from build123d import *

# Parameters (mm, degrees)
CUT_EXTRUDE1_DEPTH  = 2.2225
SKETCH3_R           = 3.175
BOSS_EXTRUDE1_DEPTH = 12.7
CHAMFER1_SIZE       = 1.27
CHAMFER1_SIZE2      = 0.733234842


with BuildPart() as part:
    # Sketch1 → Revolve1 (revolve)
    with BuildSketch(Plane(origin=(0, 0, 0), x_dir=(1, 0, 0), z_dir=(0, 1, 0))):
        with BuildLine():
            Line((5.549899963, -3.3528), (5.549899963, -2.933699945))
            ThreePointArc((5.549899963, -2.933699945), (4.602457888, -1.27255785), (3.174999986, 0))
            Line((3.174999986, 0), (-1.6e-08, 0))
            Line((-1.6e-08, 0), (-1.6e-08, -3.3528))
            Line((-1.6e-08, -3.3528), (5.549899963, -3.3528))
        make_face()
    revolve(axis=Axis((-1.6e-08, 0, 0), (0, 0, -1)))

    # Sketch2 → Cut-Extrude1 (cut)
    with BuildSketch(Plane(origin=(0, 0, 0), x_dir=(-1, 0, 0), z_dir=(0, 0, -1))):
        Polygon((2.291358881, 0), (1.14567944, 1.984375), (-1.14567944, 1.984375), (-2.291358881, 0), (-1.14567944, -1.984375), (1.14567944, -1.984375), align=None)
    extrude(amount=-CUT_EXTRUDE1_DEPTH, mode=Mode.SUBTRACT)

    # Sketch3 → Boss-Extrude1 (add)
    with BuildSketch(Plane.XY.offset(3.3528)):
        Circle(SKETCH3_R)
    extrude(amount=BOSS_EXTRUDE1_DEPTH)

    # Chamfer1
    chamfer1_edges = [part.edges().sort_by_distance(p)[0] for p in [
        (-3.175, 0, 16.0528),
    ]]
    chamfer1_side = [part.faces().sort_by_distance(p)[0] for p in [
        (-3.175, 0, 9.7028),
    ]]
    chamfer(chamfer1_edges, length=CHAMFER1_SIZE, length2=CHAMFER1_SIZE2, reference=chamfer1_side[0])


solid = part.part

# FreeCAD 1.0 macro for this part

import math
import FreeCAD as App
import Part
import Sketcher
from FreeCAD import Vector
Q = App.Units.Quantity


def edges_at(feature, points):
    """Names of the edges that pass closest to the given points."""
    edges = feature.Shape.Edges
    near = lambda p: min(range(len(edges)), key=lambda i: edges[i].distToShape(Part.Vertex(*p))[0])
    return sorted({f"Edge{near(p) + 1}" for p in points})

doc = App.newDocument("Part")
body = doc.addObject("PartDesign::Body", "Body")

# Sketch on XZ plane
sketch1 = body.newObject("Sketcher::SketchObject", "Sketch")
sketch1.AttachmentSupport = (doc.getObject("XZ_Plane"), [""])
sketch1.MapMode = "FlatFace"
sketch1.addGeometry(Part.LineSegment(Vector(5.55, 3.35, 0), Vector(5.55, 2.93, 0)), False)
sketch1.addGeometry(Part.ArcOfCircle(Part.Circle(Vector(0, 5, 0), Vector(0, 0, 1), 5.92), math.radians(-58), math.radians(-20)), False)
sketch1.addGeometry(Part.LineSegment(Vector(3.17, 0, 0), Vector(0, 0, 0)), False)
sketch1.addGeometry(Part.LineSegment(Vector(0, 0, 0), Vector(0, 3.35, 0)), False)
sketch1.addGeometry(Part.LineSegment(Vector(0, 3.35, 0), Vector(5.55, 3.35, 0)), False)
sketch1.addConstraint(Sketcher.Constraint("Coincident", 0, 2, 1, 2))
sketch1.addConstraint(Sketcher.Constraint("Coincident", 1, 1, 2, 1))
sketch1.addConstraint(Sketcher.Constraint("Coincident", 2, 2, 3, 1))
sketch1.addConstraint(Sketcher.Constraint("Coincident", 3, 2, 4, 1))
sketch1.addConstraint(Sketcher.Constraint("Coincident", 4, 2, 0, 1))
sketch1.addConstraint(Sketcher.Constraint("Vertical", 0))
sketch1.addConstraint(Sketcher.Constraint("Horizontal", 2))
sketch1.addConstraint(Sketcher.Constraint("Vertical", 3))
sketch1.addConstraint(Sketcher.Constraint("Horizontal", 4))
sketch1.addConstraint(Sketcher.Constraint("Coincident", 2, 2, -1, 1))
sketch1.addConstraint(Sketcher.Constraint("PointOnObject", 1, 3, -2))
sketch1.addConstraint(Sketcher.Constraint("DistanceX", 2, 2, 2, 1, Q("0.125 in")))
sketch1.addConstraint(Sketcher.Constraint("DistanceY", 3, 1, 3, 2, Q("0.132 in")))
sketch1.addConstraint(Sketcher.Constraint("DistanceX", 4, 1, 4, 2, Q("0.2185 in")))
sketch1.addConstraint(Sketcher.Constraint("DistanceY", 0, 2, 0, 1, Q("0.0165 in")))
revolution = body.newObject("PartDesign::Revolution", "Revolution")
revolution.Profile = sketch1
revolution.ReferenceAxis = (sketch1, ["V_Axis"])
revolution.Angle = 360

# Sketch on XY plane
sketch2 = body.newObject("Sketcher::SketchObject", "Sketch001")
sketch2.AttachmentSupport = (doc.getObject("XY_Plane"), [""])
sketch2.MapMode = "FlatFace"
sketch2.addGeometry(Part.LineSegment(Vector(-2.3, 0, 0), Vector(-1.1, 2, 0)), False)
sketch2.addGeometry(Part.LineSegment(Vector(-1.1, 2, 0), Vector(1.1, 2, 0)), False)
sketch2.addGeometry(Part.LineSegment(Vector(1.1, 2, 0), Vector(2.3, 0, 0)), False)
sketch2.addGeometry(Part.LineSegment(Vector(2.3, 0, 0), Vector(1.1, -2, 0)), False)
sketch2.addGeometry(Part.LineSegment(Vector(1.1, -2, 0), Vector(-1.1, -2, 0)), False)
sketch2.addGeometry(Part.LineSegment(Vector(-1.1, -2, 0), Vector(-2.3, 0, 0)), False)
sketch2.addConstraint(Sketcher.Constraint("Coincident", 0, 2, 1, 1))
sketch2.addConstraint(Sketcher.Constraint("Coincident", 1, 2, 2, 1))
sketch2.addConstraint(Sketcher.Constraint("Coincident", 2, 2, 3, 1))
sketch2.addConstraint(Sketcher.Constraint("Coincident", 3, 2, 4, 1))
sketch2.addConstraint(Sketcher.Constraint("Coincident", 4, 2, 5, 1))
sketch2.addConstraint(Sketcher.Constraint("Coincident", 5, 2, 0, 1))
sketch2.addConstraint(Sketcher.Constraint("Horizontal", 1))
sketch2.addConstraint(Sketcher.Constraint("Horizontal", 4))
sketch2.addConstraint(Sketcher.Constraint("Symmetric", 0, 2, 3, 2, -1, 1))
sketch2.addConstraint(Sketcher.Constraint("Symmetric", 2, 2, 5, 2, -1, 1))
sketch2.addConstraint(Sketcher.Constraint("PointOnObject", 2, 2, -1))
sketch2.addConstraint(Sketcher.Constraint("Parallel", 2, 5))
sketch2.addConstraint(Sketcher.Constraint("Vertical", 1, 2, 3, 2))
sketch2.addConstraint(Sketcher.Constraint("Angle", 0, Q("60 deg")))
sketch2.addConstraint(Sketcher.Constraint("DistanceY", -1, 1, 0, 2, Q("0.078125 in")))
sketch2.addConstraint(Sketcher.Constraint("DistanceX", 1, 1, 1, 2, Q("2.291359 mm")))
pocket1 = body.newObject("PartDesign::Pocket", "Pocket")
pocket1.Profile = sketch2
pocket1.Length = Q("0.0875 in")
pocket1.Reversed = True

# Sketch on XY plane
sketch3 = body.newObject("Sketcher::SketchObject", "Sketch002")
sketch3.AttachmentSupport = (doc.getObject("XY_Plane"), [""])
sketch3.MapMode = "FlatFace"
sketch3.AttachmentOffset = App.Placement(Vector(0, 0, 0.132 * 25.4), App.Rotation())
sketch3.addGeometry(Part.Circle(Vector(0, 0, 0), Vector(0, 0, 1), 3.2), False)
sketch3.addConstraint(Sketcher.Constraint("Coincident", 0, 3, -1, 1))
sketch3.addConstraint(Sketcher.Constraint("Diameter", 0, Q("0.25 in")))
pad1 = body.newObject("PartDesign::Pad", "Pad")
pad1.Profile = sketch3
pad1.Length = Q("0.5 in")
doc.recompute()

chamfer = body.newObject("PartDesign::Chamfer", "Chamfer")
chamfer.Base = (pad1, edges_at(pad1, [(-3.175, 0, 16.053)]))
chamfer.ChamferType = "Two distances"
chamfer.Size = Q("0.05 in")
chamfer.Size2 = 0.733235

doc.recompute()
